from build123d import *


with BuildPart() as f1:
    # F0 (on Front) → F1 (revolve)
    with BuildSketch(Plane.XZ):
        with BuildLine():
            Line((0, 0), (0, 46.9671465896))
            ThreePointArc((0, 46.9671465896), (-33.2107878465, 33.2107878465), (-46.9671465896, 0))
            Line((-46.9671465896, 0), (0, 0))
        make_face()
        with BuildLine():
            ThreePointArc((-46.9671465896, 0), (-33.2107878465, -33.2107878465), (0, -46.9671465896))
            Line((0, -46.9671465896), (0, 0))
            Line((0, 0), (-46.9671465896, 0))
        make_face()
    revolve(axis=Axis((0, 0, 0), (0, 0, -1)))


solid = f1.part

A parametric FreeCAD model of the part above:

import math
import FreeCAD as App
import Part
import Sketcher

V = App.Vector
Q = App.Units.Quantity

doc = App.newDocument("Part")
params = doc.addObject("Spreadsheet::Sheet", "Params")
for row, (alias, value) in enumerate([
    ("revolution_angle", "360 deg"),
], start=1):
    params.set(f"A{row}", alias)
    params.set(f"B{row}", "=" + value)
    params.setAlias(f"B{row}", alias)

body = doc.addObject("PartDesign::Body", "Body")

# Sketch on XZ plane
sketch1 = body.newObject("Sketcher::SketchObject", "Sketch")
sketch1.AttachmentSupport = (doc.getObject("XZ_Plane"), [""])
sketch1.MapMode = "FlatFace"
sketch1.addGeometry(Part.ArcOfCircle(Part.Circle(V(0, 0, 0), V(0, 0, 1), 47), math.radians(90), math.radians(180)), False)
sketch1.addGeometry(Part.ArcOfCircle(Part.Circle(V(0, 0, 0), V(0, 0, 1), 47), math.radians(180), math.radians(270)), False)
sketch1.addGeometry(Part.LineSegment(V(0, -47, 0), V(0, 47, 0)), False)
sketch1.addConstraint(Sketcher.Constraint("Tangent", 0, 2, 1, 1))
sketch1.addConstraint(Sketcher.Constraint("Coincident", 1, 2, 2, 1))
sketch1.addConstraint(Sketcher.Constraint("Coincident", 2, 2, 0, 1))
sketch1.addConstraint(Sketcher.Constraint("Vertical", 2))
sketch1.addConstraint(Sketcher.Constraint("Coincident", 0, 3, -1, 1))
sketch1.addConstraint(Sketcher.Constraint("Equal", 0, 1))
sketch1.addConstraint(Sketcher.Constraint("PointOnObject", 0, 2, -1))
sketch1.addConstraint(Sketcher.Constraint("PointOnObject", 1, 2, -2))
sketch1.addConstraint(Sketcher.Constraint("Radius", 0, Q("46.967147 mm")))
revolution = body.newObject("PartDesign::Revolution", "Revolution")
revolution.Profile = sketch1
revolution.ReferenceAxis = (sketch1, ["V_Axis"])
revolution.setExpression("Angle", "Params.revolution_angle")

doc.recompute()
